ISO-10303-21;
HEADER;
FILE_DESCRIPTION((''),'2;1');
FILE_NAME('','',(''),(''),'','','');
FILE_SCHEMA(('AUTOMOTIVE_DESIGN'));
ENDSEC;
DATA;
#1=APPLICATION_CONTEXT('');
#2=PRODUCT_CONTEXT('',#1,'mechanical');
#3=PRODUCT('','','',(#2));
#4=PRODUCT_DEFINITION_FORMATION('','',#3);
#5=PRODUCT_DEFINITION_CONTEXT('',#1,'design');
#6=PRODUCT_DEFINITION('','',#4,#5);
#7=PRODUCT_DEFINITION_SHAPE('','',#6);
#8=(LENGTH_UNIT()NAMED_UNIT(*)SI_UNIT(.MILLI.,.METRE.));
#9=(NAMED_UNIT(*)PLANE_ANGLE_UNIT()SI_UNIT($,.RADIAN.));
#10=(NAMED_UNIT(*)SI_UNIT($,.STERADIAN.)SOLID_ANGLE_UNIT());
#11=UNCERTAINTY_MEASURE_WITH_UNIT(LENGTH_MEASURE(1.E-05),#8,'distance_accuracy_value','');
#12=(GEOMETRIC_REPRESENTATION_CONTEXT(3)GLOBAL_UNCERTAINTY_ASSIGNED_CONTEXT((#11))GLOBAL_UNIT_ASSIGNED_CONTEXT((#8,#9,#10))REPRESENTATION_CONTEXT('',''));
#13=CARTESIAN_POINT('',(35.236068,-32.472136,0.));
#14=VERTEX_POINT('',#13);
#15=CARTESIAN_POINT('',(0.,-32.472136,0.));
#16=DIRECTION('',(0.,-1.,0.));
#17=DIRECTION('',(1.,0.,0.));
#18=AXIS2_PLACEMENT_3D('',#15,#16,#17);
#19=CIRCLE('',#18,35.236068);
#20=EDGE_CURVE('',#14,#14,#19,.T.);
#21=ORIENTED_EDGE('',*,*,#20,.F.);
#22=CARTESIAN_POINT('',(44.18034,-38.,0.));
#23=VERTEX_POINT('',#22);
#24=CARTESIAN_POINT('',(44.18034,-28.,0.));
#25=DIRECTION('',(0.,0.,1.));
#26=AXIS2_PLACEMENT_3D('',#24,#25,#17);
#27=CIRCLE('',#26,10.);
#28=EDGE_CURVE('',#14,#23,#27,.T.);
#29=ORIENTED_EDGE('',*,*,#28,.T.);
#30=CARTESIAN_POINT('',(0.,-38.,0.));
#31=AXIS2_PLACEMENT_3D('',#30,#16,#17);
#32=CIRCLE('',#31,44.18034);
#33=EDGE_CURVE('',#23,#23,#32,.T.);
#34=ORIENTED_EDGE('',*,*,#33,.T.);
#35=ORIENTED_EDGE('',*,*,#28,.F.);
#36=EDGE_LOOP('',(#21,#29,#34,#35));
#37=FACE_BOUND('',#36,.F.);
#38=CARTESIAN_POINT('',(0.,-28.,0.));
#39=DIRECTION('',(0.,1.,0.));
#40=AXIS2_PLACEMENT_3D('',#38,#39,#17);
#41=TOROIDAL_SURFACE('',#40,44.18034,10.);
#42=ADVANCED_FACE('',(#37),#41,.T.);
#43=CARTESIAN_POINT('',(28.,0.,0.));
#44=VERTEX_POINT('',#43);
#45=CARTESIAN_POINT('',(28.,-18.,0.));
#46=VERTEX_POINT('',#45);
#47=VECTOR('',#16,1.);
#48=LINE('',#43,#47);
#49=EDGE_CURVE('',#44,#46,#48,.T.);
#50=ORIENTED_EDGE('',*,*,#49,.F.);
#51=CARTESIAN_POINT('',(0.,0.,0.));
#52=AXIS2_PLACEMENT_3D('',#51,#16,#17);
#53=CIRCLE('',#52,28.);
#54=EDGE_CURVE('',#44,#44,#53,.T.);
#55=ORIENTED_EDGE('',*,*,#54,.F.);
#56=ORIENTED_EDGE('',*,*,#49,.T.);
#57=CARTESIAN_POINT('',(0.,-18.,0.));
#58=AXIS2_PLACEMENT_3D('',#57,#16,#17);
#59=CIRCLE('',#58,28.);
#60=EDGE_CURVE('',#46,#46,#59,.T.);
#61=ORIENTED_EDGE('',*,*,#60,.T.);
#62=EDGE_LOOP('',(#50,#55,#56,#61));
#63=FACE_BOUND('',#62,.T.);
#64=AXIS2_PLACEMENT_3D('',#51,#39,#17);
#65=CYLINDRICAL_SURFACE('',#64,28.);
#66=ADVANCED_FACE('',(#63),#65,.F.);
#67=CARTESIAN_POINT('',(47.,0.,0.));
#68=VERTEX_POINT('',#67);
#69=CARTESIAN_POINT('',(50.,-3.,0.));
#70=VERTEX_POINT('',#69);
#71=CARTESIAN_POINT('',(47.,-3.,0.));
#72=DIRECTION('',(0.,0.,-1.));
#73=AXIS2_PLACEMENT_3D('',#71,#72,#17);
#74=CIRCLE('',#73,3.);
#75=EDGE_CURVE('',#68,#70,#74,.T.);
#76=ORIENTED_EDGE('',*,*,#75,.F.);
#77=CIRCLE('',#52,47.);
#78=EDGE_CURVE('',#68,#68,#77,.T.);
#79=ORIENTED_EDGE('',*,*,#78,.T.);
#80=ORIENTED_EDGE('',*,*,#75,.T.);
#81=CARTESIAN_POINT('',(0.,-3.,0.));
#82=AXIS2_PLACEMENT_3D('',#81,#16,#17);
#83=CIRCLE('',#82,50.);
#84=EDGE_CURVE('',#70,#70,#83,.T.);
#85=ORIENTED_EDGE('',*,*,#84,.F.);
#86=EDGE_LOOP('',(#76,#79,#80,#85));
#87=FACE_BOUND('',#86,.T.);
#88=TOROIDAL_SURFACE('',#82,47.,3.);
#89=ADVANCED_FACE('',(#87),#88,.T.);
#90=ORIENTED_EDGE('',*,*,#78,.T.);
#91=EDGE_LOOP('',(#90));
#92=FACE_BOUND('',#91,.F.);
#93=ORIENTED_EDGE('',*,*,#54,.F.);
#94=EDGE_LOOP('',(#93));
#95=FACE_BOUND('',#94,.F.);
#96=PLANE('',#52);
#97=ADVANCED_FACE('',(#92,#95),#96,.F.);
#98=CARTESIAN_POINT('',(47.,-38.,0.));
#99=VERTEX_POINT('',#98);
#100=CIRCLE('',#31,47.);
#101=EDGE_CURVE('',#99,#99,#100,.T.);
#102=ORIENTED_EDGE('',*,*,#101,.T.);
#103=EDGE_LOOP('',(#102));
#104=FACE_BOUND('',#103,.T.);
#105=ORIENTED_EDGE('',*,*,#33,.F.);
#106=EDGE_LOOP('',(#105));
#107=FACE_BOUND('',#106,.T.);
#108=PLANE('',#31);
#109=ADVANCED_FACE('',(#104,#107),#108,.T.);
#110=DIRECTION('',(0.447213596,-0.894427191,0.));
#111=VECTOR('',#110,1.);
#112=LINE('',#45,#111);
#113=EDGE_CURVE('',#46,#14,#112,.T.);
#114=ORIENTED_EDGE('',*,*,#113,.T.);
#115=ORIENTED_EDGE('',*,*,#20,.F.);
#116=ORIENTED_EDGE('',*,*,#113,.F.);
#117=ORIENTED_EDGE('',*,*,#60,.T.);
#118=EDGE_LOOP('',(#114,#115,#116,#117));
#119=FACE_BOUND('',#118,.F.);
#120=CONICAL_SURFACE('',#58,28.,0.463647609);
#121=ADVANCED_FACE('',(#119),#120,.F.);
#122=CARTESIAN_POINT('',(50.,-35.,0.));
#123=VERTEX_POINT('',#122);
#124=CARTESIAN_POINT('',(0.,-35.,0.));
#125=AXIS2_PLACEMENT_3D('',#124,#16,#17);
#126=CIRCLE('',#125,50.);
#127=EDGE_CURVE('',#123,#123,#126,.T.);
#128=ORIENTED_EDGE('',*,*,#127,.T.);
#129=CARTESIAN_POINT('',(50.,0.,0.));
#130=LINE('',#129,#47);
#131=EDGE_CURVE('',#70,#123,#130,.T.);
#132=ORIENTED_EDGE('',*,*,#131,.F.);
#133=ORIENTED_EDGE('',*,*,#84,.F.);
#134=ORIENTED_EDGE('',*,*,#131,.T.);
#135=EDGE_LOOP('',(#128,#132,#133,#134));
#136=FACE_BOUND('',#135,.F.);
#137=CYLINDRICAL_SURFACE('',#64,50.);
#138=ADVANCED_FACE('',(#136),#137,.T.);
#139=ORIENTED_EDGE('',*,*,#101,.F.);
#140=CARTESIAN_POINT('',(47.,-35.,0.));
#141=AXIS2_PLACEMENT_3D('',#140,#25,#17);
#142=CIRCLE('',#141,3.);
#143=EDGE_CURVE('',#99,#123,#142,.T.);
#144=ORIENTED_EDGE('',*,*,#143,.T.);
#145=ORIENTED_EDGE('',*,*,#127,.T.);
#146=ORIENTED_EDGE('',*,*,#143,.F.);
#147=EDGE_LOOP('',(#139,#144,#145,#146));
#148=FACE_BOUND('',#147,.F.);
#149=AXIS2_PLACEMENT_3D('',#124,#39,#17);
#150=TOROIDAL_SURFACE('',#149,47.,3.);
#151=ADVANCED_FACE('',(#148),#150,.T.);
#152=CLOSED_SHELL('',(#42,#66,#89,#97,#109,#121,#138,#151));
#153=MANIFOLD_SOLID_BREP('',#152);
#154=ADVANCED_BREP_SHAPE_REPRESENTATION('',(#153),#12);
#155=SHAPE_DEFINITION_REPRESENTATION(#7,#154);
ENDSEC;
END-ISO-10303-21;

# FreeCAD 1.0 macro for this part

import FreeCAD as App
import Part
import Sketcher
from FreeCAD import Vector


def edges_at(feature, points):
    """Names of the edges that pass closest to the given points."""
    edges = feature.Shape.Edges
    near = lambda p: min(range(len(edges)), key=lambda i: edges[i].distToShape(Part.Vertex(*p))[0])
    return sorted({f"Edge{near(p) + 1}" for p in points})

doc = App.newDocument("Part")
body = doc.addObject("PartDesign::Body", "Body")

# Sketch on XZ plane
sketch1 = doc.addObject("Sketcher::SketchObject", "Sketch")
body.addObject(sketch1)
sketch1.AttachmentSupport = (doc.XZ_Plane, [""])
sketch1.MapMode = "FlatFace"
sketch1.addGeometry(Part.Circle(Vector(0, 0, 0), Vector(0, 0, 1), 50), False)
sketch1.addGeometry(Part.Circle(Vector(0, 0, 0), Vector(0, 0, 1), 28), False)
sketch1.addConstraint(Sketcher.Constraint("Coincident", 0, 3, -1, 1))
sketch1.addConstraint(Sketcher.Constraint("Coincident", 1, 3, -1, 1))
sketch1.addConstraint(Sketcher.Constraint("Diameter", 0, 100.0))
sketch1.addConstraint(Sketcher.Constraint("Diameter", 1, 56.0))
pad1 = doc.addObject("PartDesign::Pad", "Pad")
body.addObject(pad1)
pad1.Profile = sketch1
pad1.Length = 38
doc.recompute()

chamfer = doc.addObject("PartDesign::Chamfer", "Chamfer")
body.addObject(chamfer)
chamfer.Base = (pad1, edges_at(pad1, [(-28, -38, 0)]))
chamfer.ChamferType = "Two distances"
chamfer.Size = 20
chamfer.Size2 = 10
doc.recompute()

fillet = doc.addObject("PartDesign::Fillet", "Fillet")
body.addObject(fillet)
fillet.Base = (chamfer, edges_at(chamfer, [(-38, -38, 0)]))
fillet.Radius = 10
doc.recompute()

fillet2 = doc.addObject("PartDesign::Fillet", "Fillet001")
body.addObject(fillet2)
fillet2.Base = (fillet, edges_at(fillet, [(-50, 0, 0), (-50, -38, 0)]))
fillet2.Radius = 3

doc.recompute()
